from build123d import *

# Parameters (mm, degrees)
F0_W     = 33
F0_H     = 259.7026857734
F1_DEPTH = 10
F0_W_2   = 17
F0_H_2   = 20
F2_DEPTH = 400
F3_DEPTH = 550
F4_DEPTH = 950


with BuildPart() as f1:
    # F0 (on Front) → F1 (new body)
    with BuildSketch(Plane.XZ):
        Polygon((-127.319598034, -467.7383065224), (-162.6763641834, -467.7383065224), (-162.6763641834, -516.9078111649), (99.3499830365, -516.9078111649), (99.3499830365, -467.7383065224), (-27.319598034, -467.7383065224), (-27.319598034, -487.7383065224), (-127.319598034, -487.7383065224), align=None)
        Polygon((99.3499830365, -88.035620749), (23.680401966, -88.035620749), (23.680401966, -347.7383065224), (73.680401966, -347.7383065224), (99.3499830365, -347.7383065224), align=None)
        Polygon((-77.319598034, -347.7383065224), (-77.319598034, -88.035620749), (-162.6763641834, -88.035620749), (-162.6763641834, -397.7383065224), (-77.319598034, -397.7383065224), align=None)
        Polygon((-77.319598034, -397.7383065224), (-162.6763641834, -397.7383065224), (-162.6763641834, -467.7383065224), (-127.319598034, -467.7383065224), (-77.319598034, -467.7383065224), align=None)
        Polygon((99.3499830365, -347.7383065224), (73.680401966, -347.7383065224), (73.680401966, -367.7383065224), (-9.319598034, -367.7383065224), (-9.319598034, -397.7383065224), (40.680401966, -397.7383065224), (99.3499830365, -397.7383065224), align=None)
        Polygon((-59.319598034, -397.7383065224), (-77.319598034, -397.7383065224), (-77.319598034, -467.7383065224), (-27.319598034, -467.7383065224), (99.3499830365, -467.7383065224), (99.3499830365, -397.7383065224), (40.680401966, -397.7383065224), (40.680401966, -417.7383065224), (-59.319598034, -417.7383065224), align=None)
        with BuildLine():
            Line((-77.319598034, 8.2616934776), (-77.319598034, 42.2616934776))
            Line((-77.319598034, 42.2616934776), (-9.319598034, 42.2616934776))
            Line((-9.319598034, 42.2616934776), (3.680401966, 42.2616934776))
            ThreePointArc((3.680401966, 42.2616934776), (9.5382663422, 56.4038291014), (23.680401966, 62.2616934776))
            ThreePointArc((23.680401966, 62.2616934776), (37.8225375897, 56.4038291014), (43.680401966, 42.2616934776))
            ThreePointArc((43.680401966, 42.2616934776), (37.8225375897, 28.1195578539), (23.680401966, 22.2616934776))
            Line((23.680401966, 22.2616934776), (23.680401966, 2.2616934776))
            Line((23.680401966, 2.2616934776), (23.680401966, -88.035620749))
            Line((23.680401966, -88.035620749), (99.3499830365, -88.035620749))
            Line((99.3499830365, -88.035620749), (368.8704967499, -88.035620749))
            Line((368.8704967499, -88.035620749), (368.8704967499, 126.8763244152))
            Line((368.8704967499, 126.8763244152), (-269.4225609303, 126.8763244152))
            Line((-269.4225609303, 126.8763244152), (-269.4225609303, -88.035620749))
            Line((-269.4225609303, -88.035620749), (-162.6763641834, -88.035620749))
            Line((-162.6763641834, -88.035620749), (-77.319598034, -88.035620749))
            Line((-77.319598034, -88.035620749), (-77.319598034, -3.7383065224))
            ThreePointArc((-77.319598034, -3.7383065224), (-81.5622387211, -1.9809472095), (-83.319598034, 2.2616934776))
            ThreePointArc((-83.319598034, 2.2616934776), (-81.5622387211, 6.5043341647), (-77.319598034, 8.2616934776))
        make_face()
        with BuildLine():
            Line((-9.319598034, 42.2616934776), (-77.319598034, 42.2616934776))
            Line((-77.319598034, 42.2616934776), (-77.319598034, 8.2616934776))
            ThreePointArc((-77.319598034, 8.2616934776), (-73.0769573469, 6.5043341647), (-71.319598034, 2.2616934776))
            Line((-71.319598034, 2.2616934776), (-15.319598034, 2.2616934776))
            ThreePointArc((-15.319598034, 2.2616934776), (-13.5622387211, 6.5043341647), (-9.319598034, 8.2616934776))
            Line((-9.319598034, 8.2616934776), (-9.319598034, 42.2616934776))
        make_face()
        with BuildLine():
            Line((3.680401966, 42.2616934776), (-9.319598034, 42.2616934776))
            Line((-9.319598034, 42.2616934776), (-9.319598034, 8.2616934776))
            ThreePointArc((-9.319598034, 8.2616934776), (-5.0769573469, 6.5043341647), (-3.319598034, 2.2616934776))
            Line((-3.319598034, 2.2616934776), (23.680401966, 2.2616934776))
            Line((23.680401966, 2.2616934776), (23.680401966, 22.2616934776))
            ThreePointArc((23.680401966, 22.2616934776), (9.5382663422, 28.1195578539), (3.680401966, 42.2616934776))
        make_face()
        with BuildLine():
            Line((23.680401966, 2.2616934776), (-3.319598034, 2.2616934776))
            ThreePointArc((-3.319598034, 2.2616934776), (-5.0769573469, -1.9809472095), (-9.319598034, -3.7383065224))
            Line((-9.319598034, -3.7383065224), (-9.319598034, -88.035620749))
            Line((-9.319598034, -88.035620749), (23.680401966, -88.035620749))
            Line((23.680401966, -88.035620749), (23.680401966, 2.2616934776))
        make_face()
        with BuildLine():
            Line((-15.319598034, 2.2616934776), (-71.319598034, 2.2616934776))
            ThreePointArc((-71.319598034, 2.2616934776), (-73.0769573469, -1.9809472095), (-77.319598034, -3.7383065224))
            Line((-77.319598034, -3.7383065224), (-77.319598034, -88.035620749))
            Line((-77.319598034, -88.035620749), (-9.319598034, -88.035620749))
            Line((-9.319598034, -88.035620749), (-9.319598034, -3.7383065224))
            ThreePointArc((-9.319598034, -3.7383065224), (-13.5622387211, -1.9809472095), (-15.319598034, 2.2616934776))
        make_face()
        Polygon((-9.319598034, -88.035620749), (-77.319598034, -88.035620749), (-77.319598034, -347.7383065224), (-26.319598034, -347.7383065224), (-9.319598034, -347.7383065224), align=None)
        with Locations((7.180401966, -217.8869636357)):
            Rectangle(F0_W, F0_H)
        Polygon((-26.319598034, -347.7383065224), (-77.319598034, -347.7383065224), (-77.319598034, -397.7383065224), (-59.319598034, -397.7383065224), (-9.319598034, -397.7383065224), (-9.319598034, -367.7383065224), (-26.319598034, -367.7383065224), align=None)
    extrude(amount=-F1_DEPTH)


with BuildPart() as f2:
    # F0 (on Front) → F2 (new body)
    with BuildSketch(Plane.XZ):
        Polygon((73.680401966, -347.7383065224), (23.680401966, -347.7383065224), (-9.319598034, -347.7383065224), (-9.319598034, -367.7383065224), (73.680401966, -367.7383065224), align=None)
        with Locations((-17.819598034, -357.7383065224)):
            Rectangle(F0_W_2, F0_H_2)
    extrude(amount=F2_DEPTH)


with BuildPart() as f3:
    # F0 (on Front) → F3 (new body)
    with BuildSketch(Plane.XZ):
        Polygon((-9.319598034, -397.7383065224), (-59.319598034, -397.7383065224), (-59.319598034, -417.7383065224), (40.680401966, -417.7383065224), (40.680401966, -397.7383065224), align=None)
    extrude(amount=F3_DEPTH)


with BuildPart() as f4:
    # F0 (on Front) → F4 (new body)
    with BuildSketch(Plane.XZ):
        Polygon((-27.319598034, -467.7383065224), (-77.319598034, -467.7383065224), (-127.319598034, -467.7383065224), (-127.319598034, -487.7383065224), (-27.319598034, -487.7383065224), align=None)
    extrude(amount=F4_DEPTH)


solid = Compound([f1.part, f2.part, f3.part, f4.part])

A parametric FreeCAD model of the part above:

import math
import FreeCAD as App
import Part
import Sketcher
from FreeCAD import Vector
Q = App.Units.Quantity

doc = App.newDocument("Part")
body = doc.addObject("PartDesign::Body", "Body")

# Sketch on XZ plane
sketch1 = doc.addObject("Sketcher::SketchObject", "Sketch")
body.addObject(sketch1)
sketch1.AttachmentSupport = (doc.XZ_Plane, [""])
sketch1.MapMode = "FlatFace"
sketch1.addGeometry(Part.LineSegment(Vector(-163, -517, 0), Vector(99, -517, 0)), False)
sketch1.addGeometry(Part.LineSegment(Vector(99, -517, 0), Vector(99, -88, 0)), False)
sketch1.addGeometry(Part.LineSegment(Vector(99, -88, 0), Vector(369, -88, 0)), False)
sketch1.addGeometry(Part.LineSegment(Vector(369, -88, 0), Vector(369, 127, 0)), False)
sketch1.addGeometry(Part.LineSegment(Vector(369, 127, 0), Vector(-269, 127, 0)), False)
sketch1.addGeometry(Part.LineSegment(Vector(-269, 127, 0), Vector(-269, -88, 0)), False)
sketch1.addGeometry(Part.LineSegment(Vector(-269, -88, 0), Vector(-163, -88, 0)), False)
sketch1.addGeometry(Part.LineSegment(Vector(-163, -88, 0), Vector(-163, -517, 0)), False)
sketch1.addGeometry(Part.LineSegment(Vector(74, -348, 0), Vector(74, -368, 0)), False)
sketch1.addGeometry(Part.LineSegment(Vector(74, -368, 0), Vector(-26, -368, 0)), False)
sketch1.addGeometry(Part.LineSegment(Vector(-26, -368, 0), Vector(-26, -348, 0)), False)
sketch1.addGeometry(Part.LineSegment(Vector(-26, -348, 0), Vector(74, -348, 0)), False)
sketch1.addGeometry(Part.LineSegment(Vector(41, -398, 0), Vector(41, -418, 0)), False)
sketch1.addGeometry(Part.LineSegment(Vector(41, -418, 0), Vector(-59, -418, 0)), False)
sketch1.addGeometry(Part.LineSegment(Vector(-59, -418, 0), Vector(-59, -398, 0)), False)
sketch1.addGeometry(Part.LineSegment(Vector(-59, -398, 0), Vector(41, -398, 0)), False)
sketch1.addGeometry(Part.ArcOfCircle(Part.Circle(Vector(-77, 2, 0), Vector(0, 0, 1), 6), math.radians(180), math.radians(270)), False)
sketch1.addGeometry(Part.ArcOfCircle(Part.Circle(Vector(-77, 2, 0), Vector(0, 0, 1), 6), math.radians(90), math.radians(180)), False)
sketch1.addGeometry(Part.ArcOfCircle(Part.Circle(Vector(-77, 2, 0), Vector(0, 0, 1), 6), math.radians(0), math.radians(90)), False)
sketch1.addGeometry(Part.ArcOfCircle(Part.Circle(Vector(-77, 2, 0), Vector(0, 0, 1), 6), math.radians(-90), math.radians(0)), False)
sketch1.addGeometry(Part.ArcOfCircle(Part.Circle(Vector(-9, 2, 0), Vector(0, 0, 1), 6), math.radians(90), math.radians(180)), False)
sketch1.addGeometry(Part.ArcOfCircle(Part.Circle(Vector(-9, 2, 0), Vector(0, 0, 1), 6), math.radians(0), math.radians(90)), False)
sketch1.addGeometry(Part.ArcOfCircle(Part.Circle(Vector(-9, 2, 0), Vector(0, 0, 1), 6), math.radians(-90), math.radians(0)), False)
sketch1.addGeometry(Part.ArcOfCircle(Part.Circle(Vector(-9, 2, 0), Vector(0, 0, 1), 6), math.radians(180), math.radians(270)), False)
sketch1.addGeometry(Part.ArcOfCircle(Part.Circle(Vector(24, 42, 0), Vector(0, 0, 1), 20), math.radians(90), math.radians(180)), False)
sketch1.addGeometry(Part.ArcOfCircle(Part.Circle(Vector(24, 42, 0), Vector(0, 0, 1), 20), math.radians(0), math.radians(90)), False)
sketch1.addGeometry(Part.ArcOfCircle(Part.Circle(Vector(24, 42, 0), Vector(0, 0, 1), 20), math.radians(-90), math.radians(0)), False)
sketch1.addGeometry(Part.ArcOfCircle(Part.Circle(Vector(24, 42, 0), Vector(0, 0, 1), 20), math.radians(180), math.radians(270)), False)
sketch1.addGeometry(Part.LineSegment(Vector(-27, -468, 0), Vector(-27, -488, 0)), False)
sketch1.addGeometry(Part.LineSegment(Vector(-27, -488, 0), Vector(-127, -488, 0)), False)
sketch1.addGeometry(Part.LineSegment(Vector(-127, -488, 0), Vector(-127, -468, 0)), False)
sketch1.addGeometry(Part.LineSegment(Vector(-127, -468, 0), Vector(-27, -468, 0)), False)
sketch1.addConstraint(Sketcher.Constraint("Coincident", 0, 2, 1, 1))
sketch1.addConstraint(Sketcher.Constraint("Coincident", 1, 2, 2, 1))
sketch1.addConstraint(Sketcher.Constraint("Coincident", 2, 2, 3, 1))
sketch1.addConstraint(Sketcher.Constraint("Coincident", 3, 2, 4, 1))
sketch1.addConstraint(Sketcher.Constraint("Coincident", 4, 2, 5, 1))
sketch1.addConstraint(Sketcher.Constraint("Coincident", 5, 2, 6, 1))
sketch1.addConstraint(Sketcher.Constraint("Coincident", 6, 2, 7, 1))
sketch1.addConstraint(Sketcher.Constraint("Coincident", 7, 2, 0, 1))
sketch1.addConstraint(Sketcher.Constraint("Coincident", 8, 2, 9, 1))
sketch1.addConstraint(Sketcher.Constraint("Coincident", 9, 2, 10, 1))
sketch1.addConstraint(Sketcher.Constraint("Coincident", 10, 2, 11, 1))
sketch1.addConstraint(Sketcher.Constraint("Coincident", 11, 2, 8, 1))
sketch1.addConstraint(Sketcher.Constraint("Coincident", 12, 2, 13, 1))
sketch1.addConstraint(Sketcher.Constraint("Coincident", 13, 2, 14, 1))
sketch1.addConstraint(Sketcher.Constraint("Coincident", 14, 2, 15, 1))
sketch1.addConstraint(Sketcher.Constraint("Coincident", 15, 2, 12, 1))
sketch1.addConstraint(Sketcher.Constraint("Tangent", 16, 1, 17, 2))
sketch1.addConstraint(Sketcher.Constraint("Tangent", 17, 1, 18, 2))
sketch1.addConstraint(Sketcher.Constraint("Tangent", 18, 1, 19, 2))
sketch1.addConstraint(Sketcher.Constraint("Tangent", 19, 1, 16, 2))
sketch1.addConstraint(Sketcher.Constraint("Tangent", 20, 1, 21, 2))
sketch1.addConstraint(Sketcher.Constraint("Tangent", 21, 1, 22, 2))
sketch1.addConstraint(Sketcher.Constraint("Tangent", 22, 1, 23, 2))
sketch1.addConstraint(Sketcher.Constraint("Tangent", 23, 1, 20, 2))
sketch1.addConstraint(Sketcher.Constraint("Tangent", 24, 1, 25, 2))
sketch1.addConstraint(Sketcher.Constraint("Tangent", 25, 1, 26, 2))
sketch1.addConstraint(Sketcher.Constraint("Tangent", 26, 1, 27, 2))
sketch1.addConstraint(Sketcher.Constraint("Tangent", 27, 1, 24, 2))
sketch1.addConstraint(Sketcher.Constraint("Coincident", 28, 2, 29, 1))
sketch1.addConstraint(Sketcher.Constraint("Coincident", 29, 2, 30, 1))
sketch1.addConstraint(Sketcher.Constraint("Coincident", 30, 2, 31, 1))
sketch1.addConstraint(Sketcher.Constraint("Coincident", 31, 2, 28, 1))
sketch1.addConstraint(Sketcher.Constraint("Horizontal", 0))
sketch1.addConstraint(Sketcher.Constraint("Vertical", 1))
sketch1.addConstraint(Sketcher.Constraint("Horizontal", 2))
sketch1.addConstraint(Sketcher.Constraint("Vertical", 3))
sketch1.addConstraint(Sketcher.Constraint("Horizontal", 4))
sketch1.addConstraint(Sketcher.Constraint("Vertical", 5))
sketch1.addConstraint(Sketcher.Constraint("Horizontal", 6))
sketch1.addConstraint(Sketcher.Constraint("Vertical", 7))
sketch1.addConstraint(Sketcher.Constraint("Vertical", 8))
sketch1.addConstraint(Sketcher.Constraint("Horizontal", 9))
sketch1.addConstraint(Sketcher.Constraint("Vertical", 10))
sketch1.addConstraint(Sketcher.Constraint("Horizontal", 11))
sketch1.addConstraint(Sketcher.Constraint("Vertical", 12))
sketch1.addConstraint(Sketcher.Constraint("Horizontal", 13))
sketch1.addConstraint(Sketcher.Constraint("Vertical", 14))
sketch1.addConstraint(Sketcher.Constraint("Horizontal", 15))
sketch1.addConstraint(Sketcher.Constraint("Vertical", 28))
sketch1.addConstraint(Sketcher.Constraint("Horizontal", 29))
sketch1.addConstraint(Sketcher.Constraint("Vertical", 30))
sketch1.addConstraint(Sketcher.Constraint("Horizontal", 31))
sketch1.addConstraint(Sketcher.Constraint("Equal", 16, 17))
sketch1.addConstraint(Sketcher.Constraint("Equal", 19, 20))
sketch1.addConstraint(Sketcher.Constraint("Equal", 20, 21))
sketch1.addConstraint(Sketcher.Constraint("Equal", 24, 25))
sketch1.addConstraint(Sketcher.Constraint("Horizontal", 19, 3, 20, 3))
sketch1.addConstraint(Sketcher.Constraint("Horizontal", 2, 2, 5, 2))
sketch1.addConstraint(Sketcher.Constraint("Horizontal", 23, 3, 16, 1))
sketch1.addConstraint(Sketcher.Constraint("Horizontal", 16, 1, 18, 1))
sketch1.addConstraint(Sketcher.Constraint("Horizontal", 18, 1, 21, 1))
sketch1.addConstraint(Sketcher.Constraint("Horizontal", 21, 1, 23, 1))
sketch1.addConstraint(Sketcher.Constraint("Horizontal", 27, 3, 25, 1))
sketch1.addConstraint(Sketcher.Constraint("Horizontal", 25, 1, 27, 1))
sketch1.addConstraint(Sketcher.Constraint("Vertical", 19, 3, 17, 1))
sketch1.addConstraint(Sketcher.Constraint("Vertical", 17, 1, 19, 1))
sketch1.addConstraint(Sketcher.Constraint("Vertical", 23, 3, 20, 1))
sketch1.addConstraint(Sketcher.Constraint("Vertical", 20, 1, 22, 1))
sketch1.addConstraint(Sketcher.Constraint("Vertical", 27, 3, 24, 1))
sketch1.addConstraint(Sketcher.Constraint("Vertical", 24, 1, 26, 1))
sketch1.addConstraint(Sketcher.Constraint("Equal", 11, 13))
sketch1.addConstraint(Sketcher.Constraint("Equal", 15, 29))
sketch1.addConstraint(Sketcher.Constraint("Equal", 10, 12))
sketch1.addConstraint(Sketcher.Constraint("Equal", 14, 28))
sketch1.addConstraint(Sketcher.Constraint("Radius", 16, Q("6 mm")))
sketch1.addConstraint(Sketcher.Constraint("Radius", 24, Q("20 mm")))
sketch1.addConstraint(Sketcher.Constraint("DistanceX", 9, 2, 9, 1, Q("100 mm")))
sketch1.addConstraint(Sketcher.Constraint("DistanceY", 8, 2, 8, 1, Q("20 mm")))
sketch1.addConstraint(Sketcher.Constraint("DistanceX", 16, 3, 20, 3, Q("68 mm")))
sketch1.addConstraint(Sketcher.Constraint("DistanceX", 20, 3, 24, 3, Q("33 mm")))
sketch1.addConstraint(Sketcher.Constraint("DistanceY", 20, 3, 24, 3, Q("40 mm")))
sketch1.addConstraint(Sketcher.Constraint("DistanceX", 20, 3, 8, 2, Q("83 mm")))
sketch1.addConstraint(Sketcher.Constraint("DistanceY", 8, 2, 20, 3, Q("370 mm")))
sketch1.addConstraint(Sketcher.Constraint("DistanceX", 12, 2, 8, 2, Q("33 mm")))
sketch1.addConstraint(Sketcher.Constraint("DistanceY", 12, 2, 8, 2, Q("50 mm")))
sketch1.addConstraint(Sketcher.Constraint("DistanceX", 13, 2, 28, 2, Q("32 mm")))
sketch1.addConstraint(Sketcher.Constraint("DistanceY", 28, 2, 13, 2, Q("70 mm")))
sketch1.addConstraint(Sketcher.Constraint("DistanceY", 1, 1, 1, 2, Q("428.87219 mm")))
sketch1.addConstraint(Sketcher.Constraint("DistanceX", 16, 3, -1, 1, Q("77.319598 mm")))
sketch1.addConstraint(Sketcher.Constraint("DistanceX", 0, 1, 0, 2, Q("262.026347 mm")))
sketch1.addConstraint(Sketcher.Constraint("DistanceX", 2, 1, 2, 2, Q("269.520514 mm")))
sketch1.addConstraint(Sketcher.Constraint("DistanceX", 4, 2, 4, 1, Q("638.293058 mm")))
sketch1.addConstraint(Sketcher.Constraint("DistanceY", 3, 1, 3, 2, Q("214.911945 mm")))
sketch1.addConstraint(Sketcher.Constraint("DistanceY", 0, 2, -1, 1, Q("516.907811 mm")))
sketch1.addConstraint(Sketcher.Constraint("DistanceX", 4, 2, -1, 1, Q("269.422561 mm")))
sketch1.addConstraint(Sketcher.Constraint("DistanceY", 24, 3, 3, 2, Q("84.614631 mm")))
pad1 = doc.addObject("PartDesign::Pad", "Pad")
body.addObject(pad1)
pad1.Profile = sketch1
pad1.Length = 10
pad1.Reversed = True
body2 = doc.addObject("PartDesign::Body", "Body001")

# Sketch on XZ plane
sketch2 = doc.addObject("Sketcher::SketchObject", "Sketch001")
body2.addObject(sketch2)
sketch2.AttachmentSupport = (doc.getObject("XZ_Plane001"), [""])
sketch2.MapMode = "FlatFace"
sketch2.addGeometry(Part.LineSegment(Vector(74, -348, 0), Vector(-26, -348, 0)), False)
sketch2.addGeometry(Part.LineSegment(Vector(-26, -348, 0), Vector(-26, -368, 0)), False)
sketch2.addGeometry(Part.LineSegment(Vector(-26, -368, 0), Vector(74, -368, 0)), False)
sketch2.addGeometry(Part.LineSegment(Vector(74, -368, 0), Vector(74, -348, 0)), False)
sketch2.addConstraint(Sketcher.Constraint("Coincident", 0, 2, 1, 1))
sketch2.addConstraint(Sketcher.Constraint("Coincident", 1, 2, 2, 1))
sketch2.addConstraint(Sketcher.Constraint("Coincident", 2, 2, 3, 1))
sketch2.addConstraint(Sketcher.Constraint("Coincident", 3, 2, 0, 1))
sketch2.addConstraint(Sketcher.Constraint("Horizontal", 0))
sketch2.addConstraint(Sketcher.Constraint("Vertical", 1))
sketch2.addConstraint(Sketcher.Constraint("Horizontal", 2))
sketch2.addConstraint(Sketcher.Constraint("Vertical", 3))
sketch2.addConstraint(Sketcher.Constraint("DistanceX", 0, 2, 0, 1, Q("100 mm")))
sketch2.addConstraint(Sketcher.Constraint("DistanceY", 1, 2, 1, 1, Q("20 mm")))
sketch2.addConstraint(Sketcher.Constraint("DistanceX", 0, 2, -1, 1, Q("26.319598 mm")))
sketch2.addConstraint(Sketcher.Constraint("DistanceY", 0, 2, -1, 1, Q("347.738307 mm")))
pad2 = doc.addObject("PartDesign::Pad", "Pad001")
body2.addObject(pad2)
pad2.Profile = sketch2
pad2.Length = 400
body3 = doc.addObject("PartDesign::Body", "Body002")

# Sketch on XZ plane
sketch3 = doc.addObject("Sketcher::SketchObject", "Sketch002")
body3.addObject(sketch3)
sketch3.AttachmentSupport = (doc.getObject("XZ_Plane002"), [""])
sketch3.MapMode = "FlatFace"
sketch3.addGeometry(Part.LineSegment(Vector(-59, -398, 0), Vector(-59, -418, 0)), False)
sketch3.addGeometry(Part.LineSegment(Vector(-59, -418, 0), Vector(41, -418, 0)), False)
sketch3.addGeometry(Part.LineSegment(Vector(41, -418, 0), Vector(41, -398, 0)), False)
sketch3.addGeometry(Part.LineSegment(Vector(41, -398, 0), Vector(-59, -398, 0)), False)
sketch3.addConstraint(Sketcher.Constraint("Coincident", 0, 2, 1, 1))
sketch3.addConstraint(Sketcher.Constraint("Coincident", 1, 2, 2, 1))
sketch3.addConstraint(Sketcher.Constraint("Coincident", 2, 2, 3, 1))
sketch3.addConstraint(Sketcher.Constraint("Coincident", 3, 2, 0, 1))
sketch3.addConstraint(Sketcher.Constraint("Vertical", 0))
sketch3.addConstraint(Sketcher.Constraint("Horizontal", 1))
sketch3.addConstraint(Sketcher.Constraint("Vertical", 2))
sketch3.addConstraint(Sketcher.Constraint("Horizontal", 3))
sketch3.addConstraint(Sketcher.Constraint("DistanceX", 1, 1, 1, 2, Q("100 mm")))
sketch3.addConstraint(Sketcher.Constraint("DistanceY", 0, 2, 0, 1, Q("20 mm")))
sketch3.addConstraint(Sketcher.Constraint("DistanceX", 0, 2, -1, 1, Q("59.319598 mm")))
sketch3.addConstraint(Sketcher.Constraint("DistanceY", 0, 2, -1, 1, Q("417.738307 mm")))
pad3 = doc.addObject("PartDesign::Pad", "Pad002")
body3.addObject(pad3)
pad3.Profile = sketch3
pad3.Length = 550
body4 = doc.addObject("PartDesign::Body", "Body003")

# Sketch on XZ plane
sketch4 = doc.addObject("Sketcher::SketchObject", "Sketch003")
body4.addObject(sketch4)
sketch4.AttachmentSupport = (doc.getObject("XZ_Plane003"), [""])
sketch4.MapMode = "FlatFace"
sketch4.addGeometry(Part.LineSegment(Vector(-27, -468, 0), Vector(-127, -468, 0)), False)
sketch4.addGeometry(Part.LineSegment(Vector(-127, -468, 0), Vector(-127, -488, 0)), False)
sketch4.addGeometry(Part.LineSegment(Vector(-127, -488, 0), Vector(-27, -488, 0)), False)
sketch4.addGeometry(Part.LineSegment(Vector(-27, -488, 0), Vector(-27, -468, 0)), False)
sketch4.addConstraint(Sketcher.Constraint("Coincident", 0, 2, 1, 1))
sketch4.addConstraint(Sketcher.Constraint("Coincident", 1, 2, 2, 1))
sketch4.addConstraint(Sketcher.Constraint("Coincident", 2, 2, 3, 1))
sketch4.addConstraint(Sketcher.Constraint("Coincident", 3, 2, 0, 1))
sketch4.addConstraint(Sketcher.Constraint("Horizontal", 0))
sketch4.addConstraint(Sketcher.Constraint("Vertical", 1))
sketch4.addConstraint(Sketcher.Constraint("Horizontal", 2))
sketch4.addConstraint(Sketcher.Constraint("Vertical", 3))
sketch4.addConstraint(Sketcher.Constraint("DistanceX", 0, 2, 0, 1, Q("100 mm")))
sketch4.addConstraint(Sketcher.Constraint("DistanceY", 1, 2, 1, 1, Q("20 mm")))
sketch4.addConstraint(Sketcher.Constraint("DistanceX", 0, 2, -1, 1, Q("127.319598 mm")))
sketch4.addConstraint(Sketcher.Constraint("DistanceY", 0, 2, -1, 1, Q("467.738307 mm")))
pad4 = doc.addObject("PartDesign::Pad", "Pad003")
body4.addObject(pad4)
pad4.Profile = sketch4
pad4.Length = 950

doc.recompute()
